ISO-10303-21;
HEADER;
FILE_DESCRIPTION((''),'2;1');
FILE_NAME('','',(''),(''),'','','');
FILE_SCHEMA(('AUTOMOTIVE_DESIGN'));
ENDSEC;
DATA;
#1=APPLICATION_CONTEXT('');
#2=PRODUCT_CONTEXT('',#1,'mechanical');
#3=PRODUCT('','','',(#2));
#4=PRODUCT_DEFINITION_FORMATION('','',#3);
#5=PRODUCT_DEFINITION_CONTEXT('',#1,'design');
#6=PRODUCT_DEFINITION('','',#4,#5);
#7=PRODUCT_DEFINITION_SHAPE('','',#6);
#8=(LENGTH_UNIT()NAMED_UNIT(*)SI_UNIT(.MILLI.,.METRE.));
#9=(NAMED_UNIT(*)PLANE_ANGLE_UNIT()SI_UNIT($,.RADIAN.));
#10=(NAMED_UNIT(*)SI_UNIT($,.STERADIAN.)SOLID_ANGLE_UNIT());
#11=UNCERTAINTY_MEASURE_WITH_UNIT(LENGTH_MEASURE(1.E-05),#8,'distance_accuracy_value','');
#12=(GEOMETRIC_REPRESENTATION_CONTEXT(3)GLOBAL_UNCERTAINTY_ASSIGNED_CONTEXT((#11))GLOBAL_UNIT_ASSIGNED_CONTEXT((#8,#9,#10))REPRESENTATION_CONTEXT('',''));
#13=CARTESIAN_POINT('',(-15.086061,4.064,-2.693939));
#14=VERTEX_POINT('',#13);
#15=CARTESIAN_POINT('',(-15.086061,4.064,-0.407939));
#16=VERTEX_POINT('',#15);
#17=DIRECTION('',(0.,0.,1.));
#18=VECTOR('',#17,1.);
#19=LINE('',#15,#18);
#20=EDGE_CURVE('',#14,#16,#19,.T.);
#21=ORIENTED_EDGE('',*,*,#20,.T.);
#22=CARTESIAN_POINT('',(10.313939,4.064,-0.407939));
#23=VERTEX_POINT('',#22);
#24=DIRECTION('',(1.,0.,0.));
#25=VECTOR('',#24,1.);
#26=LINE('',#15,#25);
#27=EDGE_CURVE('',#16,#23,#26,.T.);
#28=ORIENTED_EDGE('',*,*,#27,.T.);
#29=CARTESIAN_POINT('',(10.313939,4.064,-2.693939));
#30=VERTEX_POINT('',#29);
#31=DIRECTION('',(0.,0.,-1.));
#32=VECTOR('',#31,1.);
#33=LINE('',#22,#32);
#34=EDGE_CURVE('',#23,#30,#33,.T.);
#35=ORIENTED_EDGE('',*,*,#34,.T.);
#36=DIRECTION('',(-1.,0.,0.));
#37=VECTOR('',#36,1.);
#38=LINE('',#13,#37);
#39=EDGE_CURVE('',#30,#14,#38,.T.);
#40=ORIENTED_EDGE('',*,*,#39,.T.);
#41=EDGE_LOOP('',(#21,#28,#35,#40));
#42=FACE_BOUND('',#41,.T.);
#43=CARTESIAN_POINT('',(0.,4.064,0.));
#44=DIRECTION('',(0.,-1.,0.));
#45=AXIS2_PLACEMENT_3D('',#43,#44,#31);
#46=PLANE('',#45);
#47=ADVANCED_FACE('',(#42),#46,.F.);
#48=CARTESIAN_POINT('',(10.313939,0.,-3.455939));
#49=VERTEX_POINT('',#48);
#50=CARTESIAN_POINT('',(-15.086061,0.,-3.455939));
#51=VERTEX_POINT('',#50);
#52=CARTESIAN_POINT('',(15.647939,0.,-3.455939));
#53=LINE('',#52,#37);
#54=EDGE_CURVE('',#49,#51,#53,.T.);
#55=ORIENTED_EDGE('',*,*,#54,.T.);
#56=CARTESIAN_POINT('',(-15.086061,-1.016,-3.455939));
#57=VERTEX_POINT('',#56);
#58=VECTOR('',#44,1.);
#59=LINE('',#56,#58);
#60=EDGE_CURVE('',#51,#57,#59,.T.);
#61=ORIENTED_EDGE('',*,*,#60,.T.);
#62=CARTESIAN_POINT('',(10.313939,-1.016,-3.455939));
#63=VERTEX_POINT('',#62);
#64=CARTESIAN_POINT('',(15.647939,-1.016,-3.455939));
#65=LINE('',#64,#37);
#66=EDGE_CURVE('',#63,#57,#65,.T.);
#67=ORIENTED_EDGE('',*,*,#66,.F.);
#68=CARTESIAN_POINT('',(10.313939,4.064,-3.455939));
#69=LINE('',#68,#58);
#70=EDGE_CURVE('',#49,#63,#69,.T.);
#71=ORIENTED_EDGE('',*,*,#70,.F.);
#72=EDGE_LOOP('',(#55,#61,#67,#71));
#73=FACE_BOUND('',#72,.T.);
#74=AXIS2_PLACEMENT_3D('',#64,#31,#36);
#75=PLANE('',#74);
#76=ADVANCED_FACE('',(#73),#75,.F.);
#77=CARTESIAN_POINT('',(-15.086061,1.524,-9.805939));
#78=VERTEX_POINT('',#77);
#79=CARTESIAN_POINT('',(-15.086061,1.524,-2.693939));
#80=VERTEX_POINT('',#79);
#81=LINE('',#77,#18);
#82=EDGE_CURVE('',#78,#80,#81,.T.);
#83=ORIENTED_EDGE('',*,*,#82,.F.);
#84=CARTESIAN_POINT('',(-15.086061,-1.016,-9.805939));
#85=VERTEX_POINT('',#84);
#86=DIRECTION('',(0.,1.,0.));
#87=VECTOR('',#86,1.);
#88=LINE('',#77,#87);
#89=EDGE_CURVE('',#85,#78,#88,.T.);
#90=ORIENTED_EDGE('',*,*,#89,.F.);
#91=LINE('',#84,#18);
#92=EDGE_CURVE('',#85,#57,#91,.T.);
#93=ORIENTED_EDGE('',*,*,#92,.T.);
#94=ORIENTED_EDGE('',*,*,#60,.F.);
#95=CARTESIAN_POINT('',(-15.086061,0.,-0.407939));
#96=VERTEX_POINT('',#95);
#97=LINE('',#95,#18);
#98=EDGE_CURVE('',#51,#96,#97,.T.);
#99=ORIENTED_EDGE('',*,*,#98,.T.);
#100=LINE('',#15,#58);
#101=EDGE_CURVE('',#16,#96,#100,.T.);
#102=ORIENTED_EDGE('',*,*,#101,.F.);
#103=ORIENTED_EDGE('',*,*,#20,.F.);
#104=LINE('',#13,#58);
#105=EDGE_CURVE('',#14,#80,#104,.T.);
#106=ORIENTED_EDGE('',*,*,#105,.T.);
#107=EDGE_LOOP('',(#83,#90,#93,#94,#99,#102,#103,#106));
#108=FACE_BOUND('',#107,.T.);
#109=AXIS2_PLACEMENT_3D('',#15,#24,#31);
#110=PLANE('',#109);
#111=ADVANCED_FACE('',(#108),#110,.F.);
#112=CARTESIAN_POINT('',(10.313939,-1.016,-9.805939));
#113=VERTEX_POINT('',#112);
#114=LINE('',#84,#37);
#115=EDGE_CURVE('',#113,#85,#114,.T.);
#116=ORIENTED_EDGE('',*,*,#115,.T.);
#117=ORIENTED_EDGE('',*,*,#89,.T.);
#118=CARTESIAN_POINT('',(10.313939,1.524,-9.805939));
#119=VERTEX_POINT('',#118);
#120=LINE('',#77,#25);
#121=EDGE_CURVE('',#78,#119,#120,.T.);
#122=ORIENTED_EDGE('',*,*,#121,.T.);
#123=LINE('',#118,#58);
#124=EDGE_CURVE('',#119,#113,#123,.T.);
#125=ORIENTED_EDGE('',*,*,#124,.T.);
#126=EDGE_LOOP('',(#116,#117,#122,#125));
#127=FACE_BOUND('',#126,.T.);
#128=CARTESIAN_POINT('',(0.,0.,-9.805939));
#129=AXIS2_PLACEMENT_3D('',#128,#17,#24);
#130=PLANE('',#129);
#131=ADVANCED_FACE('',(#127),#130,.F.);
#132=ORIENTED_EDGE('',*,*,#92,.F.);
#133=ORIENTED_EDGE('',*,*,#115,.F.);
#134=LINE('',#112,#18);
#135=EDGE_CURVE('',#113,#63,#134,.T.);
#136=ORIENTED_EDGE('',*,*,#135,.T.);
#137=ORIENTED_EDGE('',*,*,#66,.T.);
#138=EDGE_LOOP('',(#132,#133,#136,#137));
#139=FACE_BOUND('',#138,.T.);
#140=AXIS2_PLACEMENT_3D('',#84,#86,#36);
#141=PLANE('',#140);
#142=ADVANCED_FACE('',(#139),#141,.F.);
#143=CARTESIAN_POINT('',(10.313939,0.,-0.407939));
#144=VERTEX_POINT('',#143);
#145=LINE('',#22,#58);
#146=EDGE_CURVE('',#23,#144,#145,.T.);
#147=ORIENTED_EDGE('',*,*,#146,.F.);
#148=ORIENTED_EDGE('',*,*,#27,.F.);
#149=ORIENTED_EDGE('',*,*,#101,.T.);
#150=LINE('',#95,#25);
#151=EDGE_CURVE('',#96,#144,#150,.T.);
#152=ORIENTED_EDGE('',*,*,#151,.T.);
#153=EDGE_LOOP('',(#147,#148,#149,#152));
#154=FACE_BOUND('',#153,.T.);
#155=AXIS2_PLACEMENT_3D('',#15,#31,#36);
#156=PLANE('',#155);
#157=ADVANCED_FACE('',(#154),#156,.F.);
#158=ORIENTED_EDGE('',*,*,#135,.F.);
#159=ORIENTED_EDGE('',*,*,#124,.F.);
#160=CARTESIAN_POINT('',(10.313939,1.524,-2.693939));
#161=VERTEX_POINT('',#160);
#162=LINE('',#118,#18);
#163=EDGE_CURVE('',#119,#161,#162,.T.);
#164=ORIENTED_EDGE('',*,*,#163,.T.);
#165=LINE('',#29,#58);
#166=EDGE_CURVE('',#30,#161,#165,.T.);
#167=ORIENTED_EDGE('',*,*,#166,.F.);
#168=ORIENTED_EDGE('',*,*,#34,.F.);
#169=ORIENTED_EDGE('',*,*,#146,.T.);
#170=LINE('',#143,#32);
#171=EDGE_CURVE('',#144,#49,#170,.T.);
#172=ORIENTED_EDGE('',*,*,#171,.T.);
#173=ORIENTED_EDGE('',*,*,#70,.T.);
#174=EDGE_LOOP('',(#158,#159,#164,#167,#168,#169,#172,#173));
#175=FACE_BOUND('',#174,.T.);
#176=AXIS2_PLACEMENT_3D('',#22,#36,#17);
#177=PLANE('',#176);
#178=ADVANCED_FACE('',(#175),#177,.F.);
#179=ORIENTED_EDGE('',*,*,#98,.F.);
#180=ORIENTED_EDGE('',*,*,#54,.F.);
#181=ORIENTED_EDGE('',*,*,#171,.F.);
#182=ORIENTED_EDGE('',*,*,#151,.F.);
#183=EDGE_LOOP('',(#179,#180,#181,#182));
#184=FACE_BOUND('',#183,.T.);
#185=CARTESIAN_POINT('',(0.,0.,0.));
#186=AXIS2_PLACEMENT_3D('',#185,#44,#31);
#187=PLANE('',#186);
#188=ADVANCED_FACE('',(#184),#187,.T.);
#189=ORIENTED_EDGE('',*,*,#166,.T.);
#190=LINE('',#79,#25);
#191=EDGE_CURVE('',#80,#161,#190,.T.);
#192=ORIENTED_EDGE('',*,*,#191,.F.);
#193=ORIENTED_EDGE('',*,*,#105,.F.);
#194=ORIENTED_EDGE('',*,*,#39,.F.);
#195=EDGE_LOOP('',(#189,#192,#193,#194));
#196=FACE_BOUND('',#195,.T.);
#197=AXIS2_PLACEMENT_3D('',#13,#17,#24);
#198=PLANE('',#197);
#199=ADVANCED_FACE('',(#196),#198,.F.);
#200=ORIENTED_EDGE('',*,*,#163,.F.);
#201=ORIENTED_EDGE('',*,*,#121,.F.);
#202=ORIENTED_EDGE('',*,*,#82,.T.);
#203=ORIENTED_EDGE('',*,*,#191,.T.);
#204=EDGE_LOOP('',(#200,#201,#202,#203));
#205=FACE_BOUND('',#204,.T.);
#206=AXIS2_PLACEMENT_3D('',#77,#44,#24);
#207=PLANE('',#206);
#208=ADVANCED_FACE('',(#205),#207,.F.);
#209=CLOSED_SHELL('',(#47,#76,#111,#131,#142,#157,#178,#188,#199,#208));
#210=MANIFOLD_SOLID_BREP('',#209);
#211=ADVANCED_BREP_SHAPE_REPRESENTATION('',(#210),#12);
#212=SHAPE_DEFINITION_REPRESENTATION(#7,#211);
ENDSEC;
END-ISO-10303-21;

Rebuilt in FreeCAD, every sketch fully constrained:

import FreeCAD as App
import Part
import Sketcher
from FreeCAD import Vector
Q = App.Units.Quantity

doc = App.newDocument("Part")
body = doc.addObject("PartDesign::Body", "Body")

# Sketch on XZ plane
sketch1 = doc.addObject("Sketcher::SketchObject", "Sketch")
body.addObject(sketch1)
sketch1.AttachmentSupport = (doc.XZ_Plane, [""])
sketch1.MapMode = "FlatFace"
sketch1.addGeometry([
    Part.LineSegment(Vector(-15.1, -2.7, 0), Vector(-15.1, -0.4, 0)),
    Part.LineSegment(Vector(-15.1, -0.4, 0), Vector(10.3, -0.4, 0)),
    Part.LineSegment(Vector(10.3, -0.4, 0), Vector(10.3, -2.7, 0)),
    Part.LineSegment(Vector(10.3, -2.7, 0), Vector(-15.1, -2.7, 0)),
], False)
sketch1.addConstraint([
    Sketcher.Constraint("Coincident", 0, 2, 1, 1),
    Sketcher.Constraint("Coincident", 1, 2, 2, 1),
    Sketcher.Constraint("Coincident", 2, 2, 3, 1),
    Sketcher.Constraint("Coincident", 3, 2, 0, 1),
    Sketcher.Constraint("Vertical", 0),
    Sketcher.Constraint("Horizontal", 1),
    Sketcher.Constraint("Vertical", 2),
    Sketcher.Constraint("Horizontal", 3),
    Sketcher.Constraint("DistanceX", 1, 1, 1, 2, Q("1 in")),
    Sketcher.Constraint("DistanceY", 0, 1, 0, 2, Q("0.09 in")),
    Sketcher.Constraint("DistanceX", 0, 2, -1, 1, Q("15.086061 mm")),
    Sketcher.Constraint("DistanceY", 0, 2, -1, 1, Q("0.407939 mm")),
])
pad1 = doc.addObject("PartDesign::Pad", "Pad")
body.addObject(pad1)
pad1.Profile = sketch1
pad1.Length = Q("0.16 in")
pad1.Reversed = True

# Sketch on XY plane
sketch2 = doc.addObject("Sketcher::SketchObject", "Sketch001")
body.addObject(sketch2)
sketch2.AttachmentSupport = (doc.XY_Plane, [""])
sketch2.MapMode = "FlatFace"
sketch2.AttachmentOffset = App.Placement(Vector(0, 0, -2.693939), App.Rotation())
sketch2.addGeometry([
    Part.LineSegment(Vector(10.3, 1.5, 0), Vector(10.3, -1, 0)),
    Part.LineSegment(Vector(10.3, -1, 0), Vector(-15.1, -1, 0)),
    Part.LineSegment(Vector(-15.1, -1, 0), Vector(-15.1, 1.5, 0)),
    Part.LineSegment(Vector(-15.1, 1.5, 0), Vector(10.3, 1.5, 0)),
], False)
sketch2.addConstraint([
    Sketcher.Constraint("Coincident", 0, 2, 1, 1),
    Sketcher.Constraint("Coincident", 1, 2, 2, 1),
    Sketcher.Constraint("Coincident", 2, 2, 3, 1),
    Sketcher.Constraint("Coincident", 3, 2, 0, 1),
    Sketcher.Constraint("Vertical", 0),
    Sketcher.Constraint("Horizontal", 1),
    Sketcher.Constraint("Vertical", 2),
    Sketcher.Constraint("Horizontal", 3),
    Sketcher.Constraint("DistanceX", 1, 2, 1, 1, Q("1 in")),
    Sketcher.Constraint("DistanceY", 0, 2, 0, 1, Q("0.1 in")),
    Sketcher.Constraint("DistanceY", 0, 2, -1, 1, Q("0.04 in")),
    Sketcher.Constraint("DistanceX", -1, 1, 0, 2, Q("10.313939 mm")),
])
pad2 = doc.addObject("PartDesign::Pad", "Pad001")
body.addObject(pad2)
pad2.Profile = sketch2
pad2.Length = Q("0.28 in")
pad2.Reversed = True

# Sketch on YZ plane
sketch3 = doc.addObject("Sketcher::SketchObject", "Sketch002")
body.addObject(sketch3)
sketch3.AttachmentSupport = (doc.YZ_Plane, [""])
sketch3.MapMode = "FlatFace"
sketch3.AttachmentOffset = App.Placement(Vector(0, 0, -15.086061), App.Rotation())
sketch3.addGeometry([
    Part.LineSegment(Vector(0, -3.5, 0), Vector(-1, -3.5, 0)),
    Part.LineSegment(Vector(-1, -3.5, 0), Vector(-1, -2.7, 0)),
    Part.LineSegment(Vector(-1, -2.7, 0), Vector(0, -2.7, 0)),
    Part.LineSegment(Vector(0, -2.7, 0), Vector(0, -3.5, 0)),
], False)
sketch3.addConstraint([
    Sketcher.Constraint("Coincident", 0, 2, 1, 1),
    Sketcher.Constraint("Coincident", 1, 2, 2, 1),
    Sketcher.Constraint("Coincident", 2, 2, 3, 1),
    Sketcher.Constraint("Coincident", 3, 2, 0, 1),
    Sketcher.Constraint("Horizontal", 0),
    Sketcher.Constraint("Vertical", 1),
    Sketcher.Constraint("Horizontal", 2),
    Sketcher.Constraint("Vertical", 3),
    Sketcher.Constraint("PointOnObject", 2, 2, -2),
    Sketcher.Constraint("DistanceX", 0, 2, 0, 1, Q("0.04 in")),
    Sketcher.Constraint("DistanceY", 1, 1, 1, 2, Q("0.03 in")),
    Sketcher.Constraint("DistanceY", 0, 2, -1, 1, Q("3.455939 mm")),
])
pocket1 = doc.addObject("PartDesign::Pocket", "Pocket")
body.addObject(pocket1)
pocket1.Profile = sketch3
pocket1.Length = Q("1.21 in")
pocket1.Reversed = True

doc.recompute()
